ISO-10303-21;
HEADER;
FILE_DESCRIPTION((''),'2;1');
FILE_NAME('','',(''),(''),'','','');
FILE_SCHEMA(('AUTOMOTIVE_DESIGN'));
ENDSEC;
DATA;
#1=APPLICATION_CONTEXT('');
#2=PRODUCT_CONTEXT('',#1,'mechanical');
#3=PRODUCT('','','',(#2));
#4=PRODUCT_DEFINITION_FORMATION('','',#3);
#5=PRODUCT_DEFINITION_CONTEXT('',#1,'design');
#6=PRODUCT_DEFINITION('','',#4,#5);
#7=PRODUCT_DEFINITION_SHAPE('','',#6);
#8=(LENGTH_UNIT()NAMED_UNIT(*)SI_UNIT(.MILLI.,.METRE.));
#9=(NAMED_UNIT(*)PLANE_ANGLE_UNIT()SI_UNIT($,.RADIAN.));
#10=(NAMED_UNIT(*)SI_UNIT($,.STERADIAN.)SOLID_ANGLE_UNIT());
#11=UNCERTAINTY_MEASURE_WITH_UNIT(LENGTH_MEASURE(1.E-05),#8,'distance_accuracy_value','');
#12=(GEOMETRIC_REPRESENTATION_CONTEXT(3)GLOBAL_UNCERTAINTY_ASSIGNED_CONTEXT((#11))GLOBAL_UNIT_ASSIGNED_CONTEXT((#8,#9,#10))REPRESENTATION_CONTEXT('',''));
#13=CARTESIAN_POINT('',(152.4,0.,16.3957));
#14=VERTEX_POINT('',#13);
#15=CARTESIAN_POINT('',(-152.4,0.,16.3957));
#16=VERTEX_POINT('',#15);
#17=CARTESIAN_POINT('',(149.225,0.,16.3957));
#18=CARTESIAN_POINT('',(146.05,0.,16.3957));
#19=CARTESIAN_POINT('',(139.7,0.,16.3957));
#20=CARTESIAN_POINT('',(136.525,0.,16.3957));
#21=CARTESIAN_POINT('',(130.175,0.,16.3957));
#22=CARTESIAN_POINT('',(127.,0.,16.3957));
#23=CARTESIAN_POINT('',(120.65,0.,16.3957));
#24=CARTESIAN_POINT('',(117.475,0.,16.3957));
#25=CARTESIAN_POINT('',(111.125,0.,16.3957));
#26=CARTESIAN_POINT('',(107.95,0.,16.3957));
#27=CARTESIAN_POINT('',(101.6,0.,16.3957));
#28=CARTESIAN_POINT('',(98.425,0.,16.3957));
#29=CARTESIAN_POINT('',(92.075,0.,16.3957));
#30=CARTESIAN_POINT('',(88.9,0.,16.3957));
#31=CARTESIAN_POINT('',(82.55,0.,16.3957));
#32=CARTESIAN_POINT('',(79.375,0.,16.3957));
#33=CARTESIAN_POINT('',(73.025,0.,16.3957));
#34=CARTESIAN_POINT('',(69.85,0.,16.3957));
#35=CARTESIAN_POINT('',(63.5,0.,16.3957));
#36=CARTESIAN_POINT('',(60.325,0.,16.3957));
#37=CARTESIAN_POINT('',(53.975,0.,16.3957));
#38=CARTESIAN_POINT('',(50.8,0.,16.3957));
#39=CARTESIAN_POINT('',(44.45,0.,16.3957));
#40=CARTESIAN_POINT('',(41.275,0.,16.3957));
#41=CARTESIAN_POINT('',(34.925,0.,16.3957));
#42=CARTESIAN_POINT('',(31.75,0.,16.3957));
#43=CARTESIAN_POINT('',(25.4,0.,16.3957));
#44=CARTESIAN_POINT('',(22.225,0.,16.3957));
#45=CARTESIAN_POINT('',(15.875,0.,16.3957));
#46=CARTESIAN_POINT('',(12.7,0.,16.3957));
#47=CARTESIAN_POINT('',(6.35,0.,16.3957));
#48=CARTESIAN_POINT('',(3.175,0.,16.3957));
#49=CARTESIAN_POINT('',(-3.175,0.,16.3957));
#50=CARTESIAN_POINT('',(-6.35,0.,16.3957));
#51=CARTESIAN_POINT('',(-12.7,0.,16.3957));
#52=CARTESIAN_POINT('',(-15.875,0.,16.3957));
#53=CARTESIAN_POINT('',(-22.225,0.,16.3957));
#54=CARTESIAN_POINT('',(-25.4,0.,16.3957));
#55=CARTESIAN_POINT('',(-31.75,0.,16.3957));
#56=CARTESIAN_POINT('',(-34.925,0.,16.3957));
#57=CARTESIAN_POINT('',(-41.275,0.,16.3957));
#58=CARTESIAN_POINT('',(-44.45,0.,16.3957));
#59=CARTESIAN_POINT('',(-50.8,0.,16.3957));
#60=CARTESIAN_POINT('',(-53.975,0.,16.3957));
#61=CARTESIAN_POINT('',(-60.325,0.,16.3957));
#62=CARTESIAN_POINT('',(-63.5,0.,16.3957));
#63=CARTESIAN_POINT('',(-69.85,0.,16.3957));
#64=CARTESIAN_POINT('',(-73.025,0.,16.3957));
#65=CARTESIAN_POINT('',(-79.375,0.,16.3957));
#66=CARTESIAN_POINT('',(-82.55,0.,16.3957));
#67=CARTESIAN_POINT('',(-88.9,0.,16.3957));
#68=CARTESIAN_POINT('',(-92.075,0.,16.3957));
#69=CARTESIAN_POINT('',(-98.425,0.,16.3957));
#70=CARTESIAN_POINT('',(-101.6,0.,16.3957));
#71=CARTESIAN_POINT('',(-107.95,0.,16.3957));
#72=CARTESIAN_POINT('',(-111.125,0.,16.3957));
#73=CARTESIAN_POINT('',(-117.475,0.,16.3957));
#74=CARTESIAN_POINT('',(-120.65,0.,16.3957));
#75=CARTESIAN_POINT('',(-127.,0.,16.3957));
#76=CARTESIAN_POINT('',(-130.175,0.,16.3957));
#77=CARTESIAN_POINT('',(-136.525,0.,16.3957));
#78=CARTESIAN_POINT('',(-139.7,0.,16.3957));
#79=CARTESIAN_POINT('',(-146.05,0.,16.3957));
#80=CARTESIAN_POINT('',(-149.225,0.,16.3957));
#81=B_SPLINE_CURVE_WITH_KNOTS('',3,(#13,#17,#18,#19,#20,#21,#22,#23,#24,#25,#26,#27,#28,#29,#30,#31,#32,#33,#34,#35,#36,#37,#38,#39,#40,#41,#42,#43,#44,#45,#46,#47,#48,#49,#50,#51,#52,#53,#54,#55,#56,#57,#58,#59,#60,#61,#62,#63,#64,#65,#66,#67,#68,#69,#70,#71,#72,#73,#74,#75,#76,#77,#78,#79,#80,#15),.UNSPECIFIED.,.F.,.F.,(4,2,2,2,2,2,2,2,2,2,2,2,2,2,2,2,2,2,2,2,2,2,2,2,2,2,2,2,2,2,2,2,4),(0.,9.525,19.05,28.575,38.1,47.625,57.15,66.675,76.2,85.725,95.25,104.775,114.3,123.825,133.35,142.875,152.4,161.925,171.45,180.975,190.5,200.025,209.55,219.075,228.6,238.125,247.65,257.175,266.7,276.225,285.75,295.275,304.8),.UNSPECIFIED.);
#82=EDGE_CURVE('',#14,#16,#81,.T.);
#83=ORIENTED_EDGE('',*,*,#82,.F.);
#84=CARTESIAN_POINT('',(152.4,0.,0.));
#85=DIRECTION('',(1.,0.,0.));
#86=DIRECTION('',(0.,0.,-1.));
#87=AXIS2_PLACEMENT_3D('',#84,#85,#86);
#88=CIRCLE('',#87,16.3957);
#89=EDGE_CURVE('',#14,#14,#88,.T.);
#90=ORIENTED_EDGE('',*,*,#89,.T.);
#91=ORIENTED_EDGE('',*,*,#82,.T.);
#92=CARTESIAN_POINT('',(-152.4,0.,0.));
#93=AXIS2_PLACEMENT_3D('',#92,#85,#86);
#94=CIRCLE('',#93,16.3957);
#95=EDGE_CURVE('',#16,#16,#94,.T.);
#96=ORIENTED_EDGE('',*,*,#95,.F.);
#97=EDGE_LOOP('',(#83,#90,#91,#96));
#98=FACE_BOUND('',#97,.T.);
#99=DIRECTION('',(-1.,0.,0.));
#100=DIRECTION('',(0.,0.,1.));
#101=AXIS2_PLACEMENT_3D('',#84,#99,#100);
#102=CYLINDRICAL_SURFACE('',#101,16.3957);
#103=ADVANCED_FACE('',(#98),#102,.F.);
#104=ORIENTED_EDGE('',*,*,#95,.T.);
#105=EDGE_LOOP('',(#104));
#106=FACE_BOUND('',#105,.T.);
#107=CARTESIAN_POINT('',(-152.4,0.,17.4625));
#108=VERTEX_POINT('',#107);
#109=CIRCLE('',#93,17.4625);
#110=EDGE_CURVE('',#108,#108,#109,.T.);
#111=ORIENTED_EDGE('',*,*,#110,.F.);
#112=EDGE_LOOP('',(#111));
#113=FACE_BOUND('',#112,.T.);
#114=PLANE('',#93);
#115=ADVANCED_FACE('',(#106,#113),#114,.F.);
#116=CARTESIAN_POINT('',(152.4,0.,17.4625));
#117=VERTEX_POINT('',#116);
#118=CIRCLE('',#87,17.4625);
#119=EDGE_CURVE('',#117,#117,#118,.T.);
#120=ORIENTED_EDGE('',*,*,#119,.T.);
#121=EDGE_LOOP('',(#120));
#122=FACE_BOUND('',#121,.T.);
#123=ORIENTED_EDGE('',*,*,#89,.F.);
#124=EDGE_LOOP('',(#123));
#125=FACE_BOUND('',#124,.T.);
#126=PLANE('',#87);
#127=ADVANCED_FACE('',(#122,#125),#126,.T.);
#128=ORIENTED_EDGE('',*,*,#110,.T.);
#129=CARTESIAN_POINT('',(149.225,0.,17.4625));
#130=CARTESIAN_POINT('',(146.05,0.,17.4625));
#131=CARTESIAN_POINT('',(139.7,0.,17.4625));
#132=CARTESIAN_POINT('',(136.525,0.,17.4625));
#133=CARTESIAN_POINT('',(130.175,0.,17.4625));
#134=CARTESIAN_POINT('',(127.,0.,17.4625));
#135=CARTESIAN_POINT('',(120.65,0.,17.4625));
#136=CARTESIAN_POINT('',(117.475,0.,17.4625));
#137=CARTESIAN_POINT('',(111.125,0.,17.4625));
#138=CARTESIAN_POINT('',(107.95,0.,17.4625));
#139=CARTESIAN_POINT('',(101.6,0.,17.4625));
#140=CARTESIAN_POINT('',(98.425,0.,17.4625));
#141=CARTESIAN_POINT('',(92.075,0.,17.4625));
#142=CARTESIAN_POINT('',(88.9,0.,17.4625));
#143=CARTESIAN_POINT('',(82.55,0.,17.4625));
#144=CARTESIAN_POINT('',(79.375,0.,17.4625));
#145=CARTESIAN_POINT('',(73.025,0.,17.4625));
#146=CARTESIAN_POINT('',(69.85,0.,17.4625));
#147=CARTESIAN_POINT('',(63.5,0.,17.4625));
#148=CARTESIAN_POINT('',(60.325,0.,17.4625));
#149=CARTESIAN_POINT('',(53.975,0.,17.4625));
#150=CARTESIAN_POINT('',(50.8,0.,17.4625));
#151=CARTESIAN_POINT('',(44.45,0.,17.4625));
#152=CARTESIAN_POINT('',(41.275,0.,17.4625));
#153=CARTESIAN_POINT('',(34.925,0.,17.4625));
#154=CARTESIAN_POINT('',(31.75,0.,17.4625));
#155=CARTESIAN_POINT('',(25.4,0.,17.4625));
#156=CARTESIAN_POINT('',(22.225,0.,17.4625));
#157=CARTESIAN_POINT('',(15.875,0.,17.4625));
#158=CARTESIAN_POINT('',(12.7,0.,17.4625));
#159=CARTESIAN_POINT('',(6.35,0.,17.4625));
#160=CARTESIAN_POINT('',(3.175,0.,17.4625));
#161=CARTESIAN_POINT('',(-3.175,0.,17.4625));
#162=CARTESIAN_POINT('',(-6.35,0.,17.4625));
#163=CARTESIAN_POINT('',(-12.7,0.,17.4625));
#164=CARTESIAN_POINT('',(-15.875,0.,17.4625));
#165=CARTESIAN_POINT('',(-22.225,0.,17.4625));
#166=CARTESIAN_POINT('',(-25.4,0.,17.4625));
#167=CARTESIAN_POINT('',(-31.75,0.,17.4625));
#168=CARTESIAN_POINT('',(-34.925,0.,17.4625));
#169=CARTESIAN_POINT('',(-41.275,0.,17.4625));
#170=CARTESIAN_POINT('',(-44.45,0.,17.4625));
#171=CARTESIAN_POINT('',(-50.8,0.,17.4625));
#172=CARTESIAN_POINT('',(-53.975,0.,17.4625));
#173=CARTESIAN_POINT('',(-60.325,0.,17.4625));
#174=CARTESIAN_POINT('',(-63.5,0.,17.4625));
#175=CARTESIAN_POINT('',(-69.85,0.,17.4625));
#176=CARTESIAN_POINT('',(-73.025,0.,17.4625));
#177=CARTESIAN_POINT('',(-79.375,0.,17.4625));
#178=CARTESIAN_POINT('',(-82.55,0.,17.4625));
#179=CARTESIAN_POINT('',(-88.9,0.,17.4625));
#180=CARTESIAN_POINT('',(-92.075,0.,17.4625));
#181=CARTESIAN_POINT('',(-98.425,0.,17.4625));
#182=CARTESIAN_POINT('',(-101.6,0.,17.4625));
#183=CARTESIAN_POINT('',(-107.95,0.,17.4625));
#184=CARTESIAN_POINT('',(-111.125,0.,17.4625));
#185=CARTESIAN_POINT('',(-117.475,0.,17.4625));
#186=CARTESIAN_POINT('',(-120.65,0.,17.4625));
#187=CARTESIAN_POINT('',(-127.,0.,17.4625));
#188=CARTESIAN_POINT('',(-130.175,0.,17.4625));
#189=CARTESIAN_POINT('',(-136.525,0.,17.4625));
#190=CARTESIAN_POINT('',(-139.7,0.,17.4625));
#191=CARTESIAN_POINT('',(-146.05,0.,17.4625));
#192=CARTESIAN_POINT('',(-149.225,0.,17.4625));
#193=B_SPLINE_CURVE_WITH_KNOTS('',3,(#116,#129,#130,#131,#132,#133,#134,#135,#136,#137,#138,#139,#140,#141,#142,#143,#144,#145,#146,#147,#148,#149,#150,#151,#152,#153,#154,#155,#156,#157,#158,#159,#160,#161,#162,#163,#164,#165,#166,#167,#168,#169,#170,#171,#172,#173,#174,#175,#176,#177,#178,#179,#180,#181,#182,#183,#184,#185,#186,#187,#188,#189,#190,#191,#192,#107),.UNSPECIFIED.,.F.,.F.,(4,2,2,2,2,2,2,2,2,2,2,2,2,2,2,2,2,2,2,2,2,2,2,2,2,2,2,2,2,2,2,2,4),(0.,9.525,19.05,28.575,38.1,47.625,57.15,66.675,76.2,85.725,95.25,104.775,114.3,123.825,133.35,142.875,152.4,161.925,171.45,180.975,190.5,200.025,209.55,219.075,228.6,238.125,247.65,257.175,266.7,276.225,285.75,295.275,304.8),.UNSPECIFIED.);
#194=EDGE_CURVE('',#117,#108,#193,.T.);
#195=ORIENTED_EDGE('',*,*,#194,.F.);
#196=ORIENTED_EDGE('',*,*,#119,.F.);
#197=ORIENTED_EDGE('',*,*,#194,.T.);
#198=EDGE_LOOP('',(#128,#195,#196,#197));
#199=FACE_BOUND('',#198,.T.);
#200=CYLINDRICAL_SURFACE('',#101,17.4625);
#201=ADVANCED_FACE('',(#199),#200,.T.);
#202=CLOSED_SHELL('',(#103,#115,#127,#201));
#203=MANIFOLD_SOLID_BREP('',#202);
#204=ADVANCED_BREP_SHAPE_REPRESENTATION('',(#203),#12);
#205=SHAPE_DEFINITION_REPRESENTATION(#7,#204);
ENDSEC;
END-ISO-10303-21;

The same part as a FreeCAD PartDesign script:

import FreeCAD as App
import Part
import Sketcher

V = App.Vector
Q = App.Units.Quantity

doc = App.newDocument("Part")
params = doc.addObject("Spreadsheet::Sheet", "Params")
for row, (alias, value) in enumerate([
    ("sketch1_diameter", "1.375 in"),
    ("sketch1_diameter2", "1.291 in"),
    ("pad1_length", "12 in"),
], start=1):
    params.set(f"A{row}", alias)
    params.set(f"B{row}", "=" + value)
    params.setAlias(f"B{row}", alias)

body = doc.addObject("PartDesign::Body", "Body")

# Sketch on YZ plane
sketch1 = body.newObject("Sketcher::SketchObject", "Sketch")
sketch1.AttachmentSupport = (doc.getObject("YZ_Plane"), [""])
sketch1.MapMode = "FlatFace"
sketch1.addGeometry(Part.Circle(V(0, 0, 0), V(0, 0, 1), 17), False)
sketch1.addGeometry(Part.Circle(V(0, 0, 0), V(0, 0, 1), 16), False)
sketch1.addConstraint(Sketcher.Constraint("Coincident", 0, 3, -1, 1))
sketch1.addConstraint(Sketcher.Constraint("Coincident", 1, 3, -1, 1))
sketch1.addConstraint(Sketcher.Constraint("Diameter", 0, Q("1.375 in")))
sketch1.addConstraint(Sketcher.Constraint("Diameter", 1, Q("1.291 in")))
sketch1.setExpression("Constraints[2]", "Params.sketch1_diameter")
sketch1.setExpression("Constraints[3]", "Params.sketch1_diameter2")
pad1 = body.newObject("PartDesign::Pad", "Pad")
pad1.Profile = sketch1
pad1.setExpression("Length", "Params.pad1_length")
pad1.Midplane = True

doc.recompute()
